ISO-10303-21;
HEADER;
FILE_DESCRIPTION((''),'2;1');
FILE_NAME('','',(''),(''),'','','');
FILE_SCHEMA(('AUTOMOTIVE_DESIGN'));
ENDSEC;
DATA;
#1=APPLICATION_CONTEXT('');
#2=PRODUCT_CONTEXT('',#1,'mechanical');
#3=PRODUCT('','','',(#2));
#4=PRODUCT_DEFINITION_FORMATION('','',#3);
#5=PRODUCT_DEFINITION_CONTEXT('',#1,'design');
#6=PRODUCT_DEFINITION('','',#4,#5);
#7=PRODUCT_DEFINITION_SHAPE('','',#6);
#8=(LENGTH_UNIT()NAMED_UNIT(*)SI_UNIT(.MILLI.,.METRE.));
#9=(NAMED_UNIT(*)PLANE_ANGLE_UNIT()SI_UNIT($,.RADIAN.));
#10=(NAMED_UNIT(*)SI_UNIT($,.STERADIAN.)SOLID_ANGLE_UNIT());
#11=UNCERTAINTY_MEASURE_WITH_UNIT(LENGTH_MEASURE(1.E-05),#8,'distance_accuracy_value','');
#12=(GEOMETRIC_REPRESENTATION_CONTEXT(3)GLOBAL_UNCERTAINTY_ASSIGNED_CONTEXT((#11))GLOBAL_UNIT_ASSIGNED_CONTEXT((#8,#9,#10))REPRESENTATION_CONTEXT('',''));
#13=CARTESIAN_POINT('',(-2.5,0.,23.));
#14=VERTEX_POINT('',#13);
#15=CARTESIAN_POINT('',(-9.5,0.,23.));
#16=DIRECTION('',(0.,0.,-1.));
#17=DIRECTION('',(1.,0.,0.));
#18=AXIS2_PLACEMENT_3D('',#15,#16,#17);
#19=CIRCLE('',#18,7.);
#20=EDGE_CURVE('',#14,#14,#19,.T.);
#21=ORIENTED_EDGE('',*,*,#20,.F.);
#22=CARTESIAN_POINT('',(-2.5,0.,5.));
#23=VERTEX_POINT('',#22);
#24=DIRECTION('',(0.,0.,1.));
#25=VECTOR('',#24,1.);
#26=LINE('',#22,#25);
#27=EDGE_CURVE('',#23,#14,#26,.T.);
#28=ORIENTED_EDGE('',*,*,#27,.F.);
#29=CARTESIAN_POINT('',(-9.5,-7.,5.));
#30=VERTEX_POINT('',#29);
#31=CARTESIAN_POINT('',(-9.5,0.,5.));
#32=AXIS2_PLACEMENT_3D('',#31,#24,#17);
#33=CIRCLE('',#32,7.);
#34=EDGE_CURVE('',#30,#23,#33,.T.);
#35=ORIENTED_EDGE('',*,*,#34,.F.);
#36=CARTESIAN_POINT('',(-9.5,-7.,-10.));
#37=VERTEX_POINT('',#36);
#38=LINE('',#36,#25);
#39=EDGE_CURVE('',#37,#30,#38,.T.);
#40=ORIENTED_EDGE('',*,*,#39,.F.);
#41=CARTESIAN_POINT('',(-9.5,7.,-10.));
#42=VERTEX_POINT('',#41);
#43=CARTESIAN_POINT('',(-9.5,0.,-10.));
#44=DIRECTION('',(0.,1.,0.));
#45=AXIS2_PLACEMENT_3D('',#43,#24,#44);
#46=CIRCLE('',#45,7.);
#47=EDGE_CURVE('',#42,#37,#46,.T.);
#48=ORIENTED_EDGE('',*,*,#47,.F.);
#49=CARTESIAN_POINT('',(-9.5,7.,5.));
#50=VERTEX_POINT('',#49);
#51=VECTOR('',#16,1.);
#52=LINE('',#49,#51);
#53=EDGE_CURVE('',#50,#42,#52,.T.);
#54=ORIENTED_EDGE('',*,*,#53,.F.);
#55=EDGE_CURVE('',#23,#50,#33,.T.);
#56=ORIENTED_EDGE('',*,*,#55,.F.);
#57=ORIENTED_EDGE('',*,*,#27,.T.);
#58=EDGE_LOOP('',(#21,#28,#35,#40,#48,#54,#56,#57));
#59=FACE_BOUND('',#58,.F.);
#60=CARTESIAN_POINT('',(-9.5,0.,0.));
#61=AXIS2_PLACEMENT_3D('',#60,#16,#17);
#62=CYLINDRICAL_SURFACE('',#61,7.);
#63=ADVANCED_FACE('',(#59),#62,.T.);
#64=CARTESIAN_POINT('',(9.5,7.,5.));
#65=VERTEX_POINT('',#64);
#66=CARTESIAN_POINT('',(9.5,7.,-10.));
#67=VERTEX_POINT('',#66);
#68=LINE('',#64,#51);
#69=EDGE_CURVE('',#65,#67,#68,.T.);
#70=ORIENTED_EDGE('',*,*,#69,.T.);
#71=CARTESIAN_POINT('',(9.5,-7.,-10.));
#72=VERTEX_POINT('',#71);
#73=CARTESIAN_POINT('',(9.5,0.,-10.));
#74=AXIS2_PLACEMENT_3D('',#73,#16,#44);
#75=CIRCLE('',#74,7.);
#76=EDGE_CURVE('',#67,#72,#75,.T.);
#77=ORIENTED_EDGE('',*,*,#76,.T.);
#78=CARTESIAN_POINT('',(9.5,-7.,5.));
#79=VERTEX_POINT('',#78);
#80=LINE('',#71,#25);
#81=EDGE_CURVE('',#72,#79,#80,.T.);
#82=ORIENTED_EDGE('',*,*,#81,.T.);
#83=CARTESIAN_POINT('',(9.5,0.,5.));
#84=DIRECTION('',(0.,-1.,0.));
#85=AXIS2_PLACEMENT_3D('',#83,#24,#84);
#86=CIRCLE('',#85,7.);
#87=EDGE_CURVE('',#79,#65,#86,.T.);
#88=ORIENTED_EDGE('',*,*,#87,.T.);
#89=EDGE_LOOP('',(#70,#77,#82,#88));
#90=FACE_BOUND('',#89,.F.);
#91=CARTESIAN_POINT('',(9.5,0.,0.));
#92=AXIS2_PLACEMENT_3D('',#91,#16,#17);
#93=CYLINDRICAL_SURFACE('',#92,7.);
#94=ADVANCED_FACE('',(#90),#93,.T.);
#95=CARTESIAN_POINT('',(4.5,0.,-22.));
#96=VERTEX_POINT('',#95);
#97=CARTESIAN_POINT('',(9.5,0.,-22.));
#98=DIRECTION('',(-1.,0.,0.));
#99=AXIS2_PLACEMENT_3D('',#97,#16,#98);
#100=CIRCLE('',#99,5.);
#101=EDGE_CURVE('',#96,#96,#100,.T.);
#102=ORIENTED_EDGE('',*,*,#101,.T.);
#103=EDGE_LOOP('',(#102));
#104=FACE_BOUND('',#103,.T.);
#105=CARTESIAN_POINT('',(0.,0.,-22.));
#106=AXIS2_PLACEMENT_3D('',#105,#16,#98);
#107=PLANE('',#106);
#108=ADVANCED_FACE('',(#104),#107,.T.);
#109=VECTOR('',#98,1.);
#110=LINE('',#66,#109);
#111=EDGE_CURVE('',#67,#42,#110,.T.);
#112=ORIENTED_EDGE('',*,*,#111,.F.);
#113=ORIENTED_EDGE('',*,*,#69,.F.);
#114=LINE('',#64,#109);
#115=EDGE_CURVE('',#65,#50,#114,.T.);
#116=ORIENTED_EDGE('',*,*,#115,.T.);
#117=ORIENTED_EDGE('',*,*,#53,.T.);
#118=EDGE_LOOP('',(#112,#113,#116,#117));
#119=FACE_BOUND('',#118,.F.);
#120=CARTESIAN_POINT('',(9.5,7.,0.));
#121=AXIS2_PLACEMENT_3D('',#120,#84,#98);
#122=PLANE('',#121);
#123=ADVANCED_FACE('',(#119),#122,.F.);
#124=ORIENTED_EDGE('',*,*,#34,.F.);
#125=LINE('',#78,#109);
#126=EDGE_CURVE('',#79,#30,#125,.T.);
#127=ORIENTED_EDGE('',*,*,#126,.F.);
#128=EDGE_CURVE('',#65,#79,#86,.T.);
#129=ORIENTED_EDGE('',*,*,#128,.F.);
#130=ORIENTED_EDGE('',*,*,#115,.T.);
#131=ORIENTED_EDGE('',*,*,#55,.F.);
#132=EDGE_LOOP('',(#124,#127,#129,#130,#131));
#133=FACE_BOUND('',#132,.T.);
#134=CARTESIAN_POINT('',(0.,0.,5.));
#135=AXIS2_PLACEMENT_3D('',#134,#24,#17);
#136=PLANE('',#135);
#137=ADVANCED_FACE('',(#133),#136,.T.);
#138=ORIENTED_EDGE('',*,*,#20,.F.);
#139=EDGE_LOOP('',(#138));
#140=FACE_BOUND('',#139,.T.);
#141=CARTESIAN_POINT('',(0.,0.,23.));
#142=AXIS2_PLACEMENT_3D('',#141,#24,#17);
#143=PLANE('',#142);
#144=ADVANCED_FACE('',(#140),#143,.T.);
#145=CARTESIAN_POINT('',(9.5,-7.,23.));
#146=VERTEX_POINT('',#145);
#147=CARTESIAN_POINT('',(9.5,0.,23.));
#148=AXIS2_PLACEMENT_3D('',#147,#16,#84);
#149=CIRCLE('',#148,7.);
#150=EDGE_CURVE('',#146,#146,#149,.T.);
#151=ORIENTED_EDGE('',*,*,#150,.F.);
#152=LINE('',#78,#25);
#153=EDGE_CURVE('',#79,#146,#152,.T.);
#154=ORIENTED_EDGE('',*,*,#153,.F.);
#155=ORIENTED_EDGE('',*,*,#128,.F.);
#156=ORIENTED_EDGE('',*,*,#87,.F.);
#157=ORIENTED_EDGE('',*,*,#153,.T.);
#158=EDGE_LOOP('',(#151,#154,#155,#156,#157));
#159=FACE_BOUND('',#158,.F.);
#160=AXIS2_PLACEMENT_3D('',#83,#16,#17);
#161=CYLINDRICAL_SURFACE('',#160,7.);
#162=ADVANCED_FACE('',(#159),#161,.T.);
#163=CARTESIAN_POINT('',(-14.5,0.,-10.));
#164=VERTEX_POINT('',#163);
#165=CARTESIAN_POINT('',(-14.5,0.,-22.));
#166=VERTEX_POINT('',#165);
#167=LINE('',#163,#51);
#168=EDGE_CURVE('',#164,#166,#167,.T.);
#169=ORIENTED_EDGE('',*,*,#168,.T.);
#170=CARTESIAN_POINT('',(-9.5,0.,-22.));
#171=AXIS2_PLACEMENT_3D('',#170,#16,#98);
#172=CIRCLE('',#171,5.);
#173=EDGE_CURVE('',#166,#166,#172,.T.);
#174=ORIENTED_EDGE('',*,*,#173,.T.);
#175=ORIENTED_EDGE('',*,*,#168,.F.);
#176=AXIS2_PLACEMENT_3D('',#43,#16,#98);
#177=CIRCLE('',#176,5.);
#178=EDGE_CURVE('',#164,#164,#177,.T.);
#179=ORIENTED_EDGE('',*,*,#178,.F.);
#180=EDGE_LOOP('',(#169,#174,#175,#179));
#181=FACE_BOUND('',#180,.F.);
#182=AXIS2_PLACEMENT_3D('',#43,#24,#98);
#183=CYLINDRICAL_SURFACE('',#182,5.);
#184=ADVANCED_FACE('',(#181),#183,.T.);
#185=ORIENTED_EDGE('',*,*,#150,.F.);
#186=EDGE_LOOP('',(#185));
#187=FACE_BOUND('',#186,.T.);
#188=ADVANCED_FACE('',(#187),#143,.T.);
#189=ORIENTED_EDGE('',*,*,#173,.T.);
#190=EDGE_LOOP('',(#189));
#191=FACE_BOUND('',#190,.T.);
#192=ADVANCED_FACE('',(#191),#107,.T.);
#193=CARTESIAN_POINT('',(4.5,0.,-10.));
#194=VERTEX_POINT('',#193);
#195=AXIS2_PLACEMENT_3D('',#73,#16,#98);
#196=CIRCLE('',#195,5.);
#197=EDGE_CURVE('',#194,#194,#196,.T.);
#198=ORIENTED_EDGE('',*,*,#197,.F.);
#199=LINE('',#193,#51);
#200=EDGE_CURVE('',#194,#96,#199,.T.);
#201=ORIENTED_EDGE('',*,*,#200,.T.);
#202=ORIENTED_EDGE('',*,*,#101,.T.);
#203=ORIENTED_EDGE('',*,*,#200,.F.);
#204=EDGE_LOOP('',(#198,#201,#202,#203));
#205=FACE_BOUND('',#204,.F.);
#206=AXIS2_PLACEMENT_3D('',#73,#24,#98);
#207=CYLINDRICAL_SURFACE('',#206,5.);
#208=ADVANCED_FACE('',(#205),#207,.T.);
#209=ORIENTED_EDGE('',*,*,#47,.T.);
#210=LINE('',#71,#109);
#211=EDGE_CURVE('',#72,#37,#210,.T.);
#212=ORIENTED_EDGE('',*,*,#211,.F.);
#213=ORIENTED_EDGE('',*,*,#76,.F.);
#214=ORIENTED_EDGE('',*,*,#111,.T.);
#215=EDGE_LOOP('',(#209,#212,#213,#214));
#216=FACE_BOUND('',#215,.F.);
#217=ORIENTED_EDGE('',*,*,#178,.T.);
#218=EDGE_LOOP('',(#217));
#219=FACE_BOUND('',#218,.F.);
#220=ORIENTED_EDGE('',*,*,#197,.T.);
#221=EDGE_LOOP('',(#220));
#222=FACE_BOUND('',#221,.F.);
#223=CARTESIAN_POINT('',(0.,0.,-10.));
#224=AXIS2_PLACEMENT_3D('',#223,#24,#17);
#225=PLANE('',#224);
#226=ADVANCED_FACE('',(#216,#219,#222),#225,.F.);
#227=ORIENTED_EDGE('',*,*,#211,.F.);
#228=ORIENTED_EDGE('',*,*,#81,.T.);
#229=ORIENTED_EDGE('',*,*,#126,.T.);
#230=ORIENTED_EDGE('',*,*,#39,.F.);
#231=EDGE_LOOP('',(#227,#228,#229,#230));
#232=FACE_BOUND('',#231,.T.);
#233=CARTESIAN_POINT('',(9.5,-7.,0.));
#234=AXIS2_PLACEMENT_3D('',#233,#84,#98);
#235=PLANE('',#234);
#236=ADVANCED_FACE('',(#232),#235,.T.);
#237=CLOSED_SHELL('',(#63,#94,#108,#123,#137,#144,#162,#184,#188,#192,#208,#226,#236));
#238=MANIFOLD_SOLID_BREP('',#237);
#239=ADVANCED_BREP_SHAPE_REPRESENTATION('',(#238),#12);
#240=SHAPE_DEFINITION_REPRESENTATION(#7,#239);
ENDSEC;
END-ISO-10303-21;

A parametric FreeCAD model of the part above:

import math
import FreeCAD as App
import Part
import Sketcher

V = App.Vector
Q = App.Units.Quantity

doc = App.newDocument("Part")
params = doc.addObject("Spreadsheet::Sheet", "Params")
for row, (alias, value) in enumerate([
    ("sketch1_radius", "7 mm"),
    ("sketch1_width", "19 mm"),
    ("pad1_length", "5 mm"),
    ("pad1_length2", "10 mm"),
    ("sketch2_diameter", "14 mm"),
    ("pad2_length", "18 mm"),
    ("sketch3_diameter", "10 mm"),
    ("pad3_length", "12 mm"),
], start=1):
    params.set(f"A{row}", alias)
    params.set(f"B{row}", "=" + value)
    params.setAlias(f"B{row}", alias)

body = doc.addObject("PartDesign::Body", "Body")

# Sketch on XY plane
sketch1 = body.newObject("Sketcher::SketchObject", "Sketch")
sketch1.AttachmentSupport = (doc.getObject("XY_Plane"), [""])
sketch1.MapMode = "FlatFace"
sketch1.addGeometry([
    Part.ArcOfCircle(Part.Circle(V(-9.5, 0, 0), V(0, 0, 1), 7), math.radians(90), math.radians(270)),
    Part.LineSegment(V(-9.5, -7, 0), V(9.5, -7, 0)),
    Part.ArcOfCircle(Part.Circle(V(9.5, 0, 0), V(0, 0, 1), 7), math.radians(-90), math.radians(90)),
    Part.LineSegment(V(9.5, 7, 0), V(-9.5, 7, 0)),
], False)
sketch1.addConstraint([
    Sketcher.Constraint("Tangent", 0, 2, 1, 1),
    Sketcher.Constraint("Tangent", 1, 2, 2, 1),
    Sketcher.Constraint("Tangent", 2, 2, 3, 1),
    Sketcher.Constraint("Tangent", 3, 2, 0, 1),
    Sketcher.Constraint("Horizontal", 1),
    Sketcher.Constraint("Horizontal", 3),
    Sketcher.Constraint("Symmetric", 0, 3, 2, 3, -1, 1),
    Sketcher.Constraint("Radius", 0, Q("7 mm")),
    Sketcher.Constraint("DistanceX", 1, 1, 1, 2, Q("19 mm")),
])
sketch1.setExpression("Constraints[7]", "Params.sketch1_radius")
sketch1.setExpression("Constraints[8]", "Params.sketch1_width")
pad1 = body.newObject("PartDesign::Pad", "Pad")
pad1.Profile = sketch1
pad1.Type = "TwoLengths"
pad1.setExpression("Length", "Params.pad1_length")
pad1.setExpression("Length2", "Params.pad1_length2")

# Sketch on XY plane
sketch2 = body.newObject("Sketcher::SketchObject", "Sketch001")
sketch2.AttachmentSupport = (doc.getObject("XY_Plane"), [""])
sketch2.MapMode = "FlatFace"
sketch2.AttachmentOffset = App.Placement(V(0, 0, 5), App.Rotation())
sketch2.addGeometry([
    Part.Circle(V(9.5, 0, 0), V(0, 0, 1), 7),
    Part.Circle(V(-9.5, 0, 0), V(0, 0, 1), 7),
], False)
sketch2.addConstraint([
    Sketcher.Constraint("Equal", 0, 1),
    Sketcher.Constraint("Symmetric", 0, 3, 1, 3, -1, 1),
    Sketcher.Constraint("PointOnObject", 0, 3, -1),
    Sketcher.Constraint("Diameter", 0, Q("14 mm")),
    Sketcher.Constraint("DistanceX", 1, 3, 0, 3, Q("19 mm")),
])
sketch2.setExpression("Constraints[3]", "Params.sketch2_diameter")
pad2 = body.newObject("PartDesign::Pad", "Pad001")
pad2.Profile = sketch2
pad2.setExpression("Length", "Params.pad2_length")

# Sketch on XY plane
sketch3 = body.newObject("Sketcher::SketchObject", "Sketch002")
sketch3.AttachmentSupport = (doc.getObject("XY_Plane"), [""])
sketch3.MapMode = "FlatFace"
sketch3.AttachmentOffset = App.Placement(V(0, 0, -10), App.Rotation())
sketch3.addGeometry([
    Part.Circle(V(-9.5, 0, 0), V(0, 0, 1), 5),
    Part.Circle(V(9.5, 0, 0), V(0, 0, 1), 5),
], False)
sketch3.addConstraint([
    Sketcher.Constraint("Equal", 0, 1),
    Sketcher.Constraint("Symmetric", 0, 3, 1, 3, -1, 1),
    Sketcher.Constraint("PointOnObject", 0, 3, -1),
    Sketcher.Constraint("Diameter", 0, Q("10 mm")),
    Sketcher.Constraint("DistanceX", 0, 3, 1, 3, Q("19 mm")),
])
sketch3.setExpression("Constraints[3]", "Params.sketch3_diameter")
pad3 = body.newObject("PartDesign::Pad", "Pad002")
pad3.Profile = sketch3
pad3.setExpression("Length", "Params.pad3_length")
pad3.Reversed = True

doc.recompute()
